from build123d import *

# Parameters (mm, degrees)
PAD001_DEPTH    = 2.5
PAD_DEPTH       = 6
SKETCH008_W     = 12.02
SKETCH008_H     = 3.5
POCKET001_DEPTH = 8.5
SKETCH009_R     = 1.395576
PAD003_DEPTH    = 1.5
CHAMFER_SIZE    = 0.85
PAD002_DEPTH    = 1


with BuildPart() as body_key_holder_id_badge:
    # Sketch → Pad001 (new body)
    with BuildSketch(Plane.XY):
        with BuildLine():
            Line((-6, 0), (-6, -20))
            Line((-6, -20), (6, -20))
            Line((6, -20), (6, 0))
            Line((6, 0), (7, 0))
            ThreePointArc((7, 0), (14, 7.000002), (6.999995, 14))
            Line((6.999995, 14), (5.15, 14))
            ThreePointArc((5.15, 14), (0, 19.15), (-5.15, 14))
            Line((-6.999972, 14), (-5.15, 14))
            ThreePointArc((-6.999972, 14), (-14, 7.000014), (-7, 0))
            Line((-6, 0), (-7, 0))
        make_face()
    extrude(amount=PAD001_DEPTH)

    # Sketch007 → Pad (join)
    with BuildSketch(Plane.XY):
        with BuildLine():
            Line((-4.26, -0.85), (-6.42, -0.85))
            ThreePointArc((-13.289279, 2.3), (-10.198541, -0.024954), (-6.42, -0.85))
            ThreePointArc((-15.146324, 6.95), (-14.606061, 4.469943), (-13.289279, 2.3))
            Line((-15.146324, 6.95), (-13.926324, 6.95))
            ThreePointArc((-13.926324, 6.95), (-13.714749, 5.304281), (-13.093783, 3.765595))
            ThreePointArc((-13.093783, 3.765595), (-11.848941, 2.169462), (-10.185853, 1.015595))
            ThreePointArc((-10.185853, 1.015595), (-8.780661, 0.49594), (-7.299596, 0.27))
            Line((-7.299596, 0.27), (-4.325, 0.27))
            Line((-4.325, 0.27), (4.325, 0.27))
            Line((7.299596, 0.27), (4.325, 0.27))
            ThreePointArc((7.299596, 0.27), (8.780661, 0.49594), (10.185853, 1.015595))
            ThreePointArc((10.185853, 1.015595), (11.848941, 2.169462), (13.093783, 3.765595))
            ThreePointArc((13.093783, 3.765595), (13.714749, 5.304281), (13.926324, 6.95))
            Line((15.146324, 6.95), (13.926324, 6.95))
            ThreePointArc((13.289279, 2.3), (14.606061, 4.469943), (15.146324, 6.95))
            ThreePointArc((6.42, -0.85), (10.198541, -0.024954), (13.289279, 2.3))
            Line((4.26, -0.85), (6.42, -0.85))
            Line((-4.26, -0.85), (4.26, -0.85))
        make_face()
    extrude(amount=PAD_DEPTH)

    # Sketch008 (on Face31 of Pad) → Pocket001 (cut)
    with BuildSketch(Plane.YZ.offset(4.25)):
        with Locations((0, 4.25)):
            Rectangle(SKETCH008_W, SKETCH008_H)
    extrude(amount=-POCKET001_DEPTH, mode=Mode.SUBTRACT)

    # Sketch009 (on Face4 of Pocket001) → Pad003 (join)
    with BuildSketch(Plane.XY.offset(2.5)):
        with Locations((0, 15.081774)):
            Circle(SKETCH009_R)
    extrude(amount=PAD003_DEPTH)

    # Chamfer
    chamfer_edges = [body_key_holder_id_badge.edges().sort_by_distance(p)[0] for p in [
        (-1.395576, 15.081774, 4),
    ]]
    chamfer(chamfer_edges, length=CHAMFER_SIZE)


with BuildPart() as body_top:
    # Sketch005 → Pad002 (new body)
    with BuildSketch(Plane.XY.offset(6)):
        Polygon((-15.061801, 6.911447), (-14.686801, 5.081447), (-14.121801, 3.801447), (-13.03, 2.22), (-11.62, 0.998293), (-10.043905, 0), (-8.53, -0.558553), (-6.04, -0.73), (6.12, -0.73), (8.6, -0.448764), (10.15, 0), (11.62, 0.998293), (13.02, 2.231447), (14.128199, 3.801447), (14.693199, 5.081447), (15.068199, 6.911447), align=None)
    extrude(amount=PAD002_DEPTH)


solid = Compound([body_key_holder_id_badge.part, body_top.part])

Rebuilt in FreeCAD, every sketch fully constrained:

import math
import FreeCAD as App
import Part
import Sketcher

V = App.Vector


def edges_at(feature, points):
    """Names of the edges that pass closest to the given points."""
    edges = feature.Shape.Edges
    near = lambda p: min(range(len(edges)), key=lambda i: edges[i].distToShape(Part.Vertex(*p))[0])
    return sorted({f"Edge{near(p) + 1}" for p in points})

doc = App.newDocument("Part")
body = doc.addObject("PartDesign::Body", "Body")

# Sketch on XY plane
sketch1 = body.newObject("Sketcher::SketchObject", "Sketch")
sketch1.AttachmentSupport = (doc.getObject("XY_Plane"), [""])
sketch1.MapMode = "FlatFace"
sketch1.addGeometry([
    Part.LineSegment(V(-6, 0, 0), V(-6, -20, 0)),  # 0
    Part.LineSegment(V(-6, -20, 0), V(6, -20, 0)),  # 1
    Part.LineSegment(V(6, -20, 0), V(6, 0, 0)),  # 2
    Part.LineSegment(V(6, 0, 0), V(7, 0, 0)),  # 3
    Part.ArcOfCircle(Part.Circle(V(7, 7, 0), V(0, 0, 1), 7), math.radians(-90), math.radians(90)),  # 4
    Part.LineSegment(V(7, 14, 0), V(5.2, 14, 0)),  # 5
    Part.ArcOfCircle(Part.Circle(V(0, 14, 0), V(0, 0, 1), 5.2), math.radians(0), math.radians(180)),  # 6
    Part.LineSegment(V(-5.2, 14, 0), V(-7, 14, 0)),  # 7
    Part.ArcOfCircle(Part.Circle(V(-7, 7, 0), V(0, 0, 1), 7), math.radians(90), math.radians(270)),  # 8
    Part.LineSegment(V(-7, 0, 0), V(-6, 0, 0)),  # 9
], False)
sketch1.addConstraint([
    Sketcher.Constraint("Coincident", 0, 2, 1, 1),
    Sketcher.Constraint("Coincident", 1, 2, 2, 1),
    Sketcher.Constraint("Coincident", 2, 2, 3, 1),
    Sketcher.Constraint("Tangent", 3, 2, 4, 1),
    Sketcher.Constraint("Tangent", 4, 2, 5, 1),
    Sketcher.Constraint("Coincident", 5, 2, 6, 1),
    Sketcher.Constraint("Coincident", 6, 2, 7, 1),
    Sketcher.Constraint("Coincident", 7, 2, 8, 1),
    Sketcher.Constraint("Tangent", 8, 2, 9, 1),
    Sketcher.Constraint("Coincident", 9, 2, 0, 1),
    Sketcher.Constraint("Vertical", 0),
    Sketcher.Constraint("Horizontal", 1),
    Sketcher.Constraint("Vertical", 2),
    Sketcher.Constraint("Horizontal", 3),
    Sketcher.Constraint("Horizontal", 5),
    Sketcher.Constraint("Horizontal", 7),
    Sketcher.Constraint("Horizontal", 9),
    Sketcher.Constraint("Equal", 4, 8),
    Sketcher.Constraint("Symmetric", 3, 2, 8, 2, -1, 1),
    Sketcher.Constraint("Symmetric", 5, 2, 6, 2, -2),
    Sketcher.Constraint("Horizontal", 6, 3, 4, 2),
    Sketcher.Constraint("Equal", 3, 9),
    Sketcher.Constraint("Radius", 4, 7.0),
    Sketcher.Constraint("DistanceX", 1, 1, 1, 2, 12.0),
    Sketcher.Constraint("DistanceX", 3, 1, 3, 2, 1.0),
    Sketcher.Constraint("DistanceY", 0, 2, 0, 1, 20.0),
    Sketcher.Constraint("Radius", 6, 5.15),
    Sketcher.Constraint("DistanceX", 7, 2, 7, 1, 1.849972),
])
pad1 = body.newObject("PartDesign::Pad", "Pad")
pad1.Profile = sketch1
pad1.Length = 2.5

# Sketch on XY plane
sketch2 = body.newObject("Sketcher::SketchObject", "Sketch001")
sketch2.AttachmentSupport = (doc.getObject("XY_Plane"), [""])
sketch2.MapMode = "FlatFace"
sketch2.addGeometry([
    Part.LineSegment(V(-6.42, -0.85, 0), V(6.42, -0.85, 0)),  # 0
    Part.ArcOfCircle(Part.Circle(V(6.419998, 8.215004, 0), V(0, 0, 1), 9.065004), math.radians(-89.999985), math.radians(-40.7311)),  # 1
    Part.ArcOfCircle(Part.Circle(V(7.450575, 7.32759, 0), V(0, 0, 1), 7.705007), math.radians(-40.731077), math.radians(-2.808951)),  # 2
    Part.LineSegment(V(15.146324, 6.95, 0), V(13.926324, 6.95, 0)),  # 3
    Part.ArcOfCircle(Part.Circle(V(7.420013, 6.949997, 0), V(0, 0, 1), 6.506311), math.radians(-29.303309), math.radians(0.000025)),  # 4
    Part.ArcOfCircle(Part.Circle(V(7.224016, 7.059992, 0), V(0, 0, 1), 6.731063), math.radians(-63.894519), math.radians(-29.303249)),  # 5
    Part.ArcOfCircle(Part.Circle(V(6.930002, 7.65999, 0), V(0, 0, 1), 7.399227), math.radians(-87.136862), math.radians(-63.894468)),  # 6
    Part.LineSegment(V(7.299596, 0.27, 0), V(-7.299596, 0.27, 0)),  # 7
    Part.ArcOfCircle(Part.Circle(V(-6.930002, 7.65999, 0), V(0, 0, 1), 7.399227), math.radians(-116.105532), math.radians(-92.863138)),  # 8
    Part.ArcOfCircle(Part.Circle(V(-7.224016, 7.059992, 0), V(0, 0, 1), 6.731063), math.radians(-150.696751), math.radians(-116.105481)),  # 9
    Part.ArcOfCircle(Part.Circle(V(-7.420013, 6.949997, 0), V(0, 0, 1), 6.506311), math.radians(179.999975), math.radians(209.303309)),  # 10
    Part.LineSegment(V(-13.926324, 6.95, 0), V(-15.146324, 6.95, 0)),  # 11
    Part.ArcOfCircle(Part.Circle(V(-7.450575, 7.32759, 0), V(0, 0, 1), 7.705007), math.radians(-177.191049), math.radians(-139.268923)),  # 12
    Part.ArcOfCircle(Part.Circle(V(-6.419998, 8.215004, 0), V(0, 0, 1), 9.065004), math.radians(-139.2689), math.radians(-90.000015)),  # 13
], False)
sketch2.addConstraint([
    Sketcher.Constraint("Coincident", 0, 2, 1, 1),
    Sketcher.Constraint("Coincident", 1, 2, 2, 1),
    Sketcher.Constraint("Coincident", 2, 2, 3, 1),
    Sketcher.Constraint("Coincident", 3, 2, 4, 2),
    Sketcher.Constraint("Coincident", 4, 1, 5, 2),
    Sketcher.Constraint("Coincident", 5, 1, 6, 2),
    Sketcher.Constraint("Coincident", 6, 1, 7, 1),
    Sketcher.Constraint("Coincident", 7, 2, 8, 2),
    Sketcher.Constraint("Coincident", 8, 1, 9, 2),
    Sketcher.Constraint("Coincident", 9, 1, 10, 2),
    Sketcher.Constraint("Coincident", 10, 1, 11, 1),
    Sketcher.Constraint("Coincident", 11, 2, 12, 1),
    Sketcher.Constraint("Coincident", 12, 2, 13, 1),
    Sketcher.Constraint("Coincident", 13, 2, 0, 1),
    Sketcher.Constraint("Horizontal", 0),
    Sketcher.Constraint("Horizontal", 3),
    Sketcher.Constraint("Horizontal", 7),
    Sketcher.Constraint("Horizontal", 11),
    Sketcher.Constraint("DistanceX", 0, 1, 0, 2, 12.84),
    Sketcher.Constraint("DistanceX", 3, 2, 3, 1, 1.22),
    Sketcher.Constraint("DistanceX", 11, 2, 11, 1, 1.22),
    Sketcher.Constraint("DistanceY", -1, 1, 1, 2, 2.3),
    Sketcher.Constraint("DistanceY", -1, 1, 12, 2, 2.3),
    Sketcher.Constraint("DistanceY", 5, 3, 6, 3, 0.599998),
    Sketcher.Constraint("DistanceY", 5, 3, 8, 3, 0.599998),
    Sketcher.Constraint("DistanceY", 9, 3, 8, 3, 0.599998),
    Sketcher.Constraint("DistanceX", -1, 1, 6, 3, 6.930002),
    Sketcher.Constraint("DistanceX", 8, 3, -1, 1, 6.930002),
    Sketcher.Constraint("DistanceX", -1, 1, 0, 2, 6.42),
    Sketcher.Constraint("DistanceY", 0, 2, -1, 1, 0.85),
    Sketcher.Constraint("DistanceY", -1, 1, 2, 2, 6.95),
    Sketcher.Constraint("DistanceY", -1, 1, 6, 1, 0.27),
    Sketcher.Constraint("DistanceY", -1, 1, 10, 1, 6.95),
    Sketcher.Constraint("Radius", 4, 6.506311),
    Sketcher.Constraint("Radius", 10, 6.506311),
    Sketcher.Constraint("DistanceX", 8, 3, 1, 3, 13.349999),
    Sketcher.Constraint("DistanceY", 5, 1, 4, 1, 2.75),
    Sketcher.Constraint("DistanceY", 8, 1, 9, 1, 2.75),
    Sketcher.Constraint("Radius", 1, 9.065004),
    Sketcher.Constraint("Radius", 2, 7.705007),
    Sketcher.Constraint("Radius", 5, 6.731063),
    Sketcher.Constraint("Radius", 6, 7.399227),
    Sketcher.Constraint("Radius", 8, 7.399227),
    Sketcher.Constraint("Radius", 9, 6.731063),
    Sketcher.Constraint("Radius", 12, 7.705007),
    Sketcher.Constraint("Radius", 13, 9.065004),
    Sketcher.Constraint("DistanceY", 2, 3, 6, 3, 0.3324),
    Sketcher.Constraint("DistanceY", 12, 3, 8, 3, 0.3324),
    Sketcher.Constraint("DistanceX", 7, 2, 13, 3, 0.879598),
    Sketcher.Constraint("DistanceX", 7, 2, 7, 1, 14.599192),
    Sketcher.Constraint("DistanceX", 4, 1, 3, 2, 0.832541),
    Sketcher.Constraint("DistanceX", 8, 1, 10, 3, 2.76584),
])
pad2 = body.newObject("PartDesign::Pad", "Pad001")
pad2.Profile = sketch2
pad2.Length = 6

# Sketch on YZ plane
sketch3 = body.newObject("Sketcher::SketchObject", "Sketch002")
sketch3.AttachmentSupport = (doc.getObject("YZ_Plane"), [""])
sketch3.MapMode = "FlatFace"
sketch3.AttachmentOffset = App.Placement(V(0, 0, 4.25), App.Rotation())
sketch3.addGeometry([
    Part.LineSegment(V(-6, 6, 0), V(-6, 2.5, 0)),
    Part.LineSegment(V(-6, 2.5, 0), V(6, 2.5, 0)),
    Part.LineSegment(V(6, 2.5, 0), V(6, 6, 0)),
    Part.LineSegment(V(6, 6, 0), V(-6, 6, 0)),
], False)
sketch3.addConstraint([
    Sketcher.Constraint("Coincident", 0, 2, 1, 1),
    Sketcher.Constraint("Coincident", 1, 2, 2, 1),
    Sketcher.Constraint("Coincident", 2, 2, 3, 1),
    Sketcher.Constraint("Coincident", 3, 2, 0, 1),
    Sketcher.Constraint("Vertical", 0),
    Sketcher.Constraint("Horizontal", 1),
    Sketcher.Constraint("Vertical", 2),
    Sketcher.Constraint("Horizontal", 3),
    Sketcher.Constraint("DistanceY", 0, 2, 0, 1, 3.5),
    Sketcher.Constraint("DistanceY", -1, 1, 2, 2, 6.0),
    Sketcher.Constraint("DistanceX", 1, 1, 1, 2, 12.02),
    Sketcher.Constraint("DistanceX", 0, 2, -1, 1, 6.01),
])
pocket1 = body.newObject("PartDesign::Pocket", "Pocket")
pocket1.Profile = sketch3
pocket1.Length = 8.5

# Sketch on XY plane
sketch4 = body.newObject("Sketcher::SketchObject", "Sketch003")
sketch4.AttachmentSupport = (doc.getObject("XY_Plane"), [""])
sketch4.MapMode = "FlatFace"
sketch4.AttachmentOffset = App.Placement(V(0, 0, 2.5), App.Rotation())
sketch4.addGeometry(Part.Circle(V(0, 15.1, 0), V(0, 0, 1), 1.4), False)
sketch4.addConstraint([
    Sketcher.Constraint("PointOnObject", 0, 3, -2),
    Sketcher.Constraint("Diameter", 0, 2.791152),
    Sketcher.Constraint("DistanceY", -1, 1, 0, 3, 15.081774),
])
pad3 = body.newObject("PartDesign::Pad", "Pad002")
pad3.Profile = sketch4
pad3.Length = 1.5
doc.recompute()

chamfer = body.newObject("PartDesign::Chamfer", "Chamfer")
chamfer.Base = (pad3, edges_at(pad3, [(-1.396, 15.082, 4)]))
chamfer.Size = 0.85
body2 = doc.addObject("PartDesign::Body", "Body001")

# Sketch on XY plane
sketch5 = body2.newObject("Sketcher::SketchObject", "Sketch004")
sketch5.AttachmentSupport = (doc.getObject("XY_Plane001"), [""])
sketch5.MapMode = "FlatFace"
sketch5.AttachmentOffset = App.Placement(V(0, 0, 6), App.Rotation())
sketch5.addGeometry([
    Part.LineSegment(V(-15.1, 6.9, 0), V(-14.7, 5.1, 0)),  # 0
    Part.LineSegment(V(-14.7, 5.1, 0), V(-14.1, 3.8, 0)),  # 1
    Part.LineSegment(V(-14.1, 3.8, 0), V(-13, 2.2, 0)),  # 2
    Part.LineSegment(V(-13, 2.2, 0), V(-11.6, 1, 0)),  # 3
    Part.LineSegment(V(-11.6, 1, 0), V(-10, 0, 0)),  # 4
    Part.LineSegment(V(-10, 0, 0), V(-8.5, -0.6, 0)),  # 5
    Part.LineSegment(V(-8.5, -0.6, 0), V(-6, -0.7, 0)),  # 6
    Part.LineSegment(V(-6, -0.7, 0), V(6.1, -0.7, 0)),  # 7
    Part.LineSegment(V(6.1, -0.7, 0), V(8.6, -0.4, 0)),  # 8
    Part.LineSegment(V(8.6, -0.4, 0), V(10.2, 0, 0)),  # 9
    Part.LineSegment(V(10.2, 0, 0), V(11.6, 1, 0)),  # 10
    Part.LineSegment(V(11.6, 1, 0), V(13, 2.2, 0)),  # 11
    Part.LineSegment(V(13, 2.2, 0), V(14.1, 3.8, 0)),  # 12
    Part.LineSegment(V(14.1, 3.8, 0), V(14.7, 5.1, 0)),  # 13
    Part.LineSegment(V(14.7, 5.1, 0), V(15.1, 6.9, 0)),  # 14
    Part.LineSegment(V(15.1, 6.9, 0), V(-15.1, 6.9, 0)),  # 15
], False)
sketch5.addConstraint([
    Sketcher.Constraint("Coincident", 0, 2, 1, 1),
    Sketcher.Constraint("Coincident", 1, 2, 2, 1),
    Sketcher.Constraint("Coincident", 2, 2, 3, 1),
    Sketcher.Constraint("Coincident", 3, 2, 4, 1),
    Sketcher.Constraint("Coincident", 4, 2, 5, 1),
    Sketcher.Constraint("Coincident", 5, 2, 6, 1),
    Sketcher.Constraint("Coincident", 6, 2, 7, 1),
    Sketcher.Constraint("Coincident", 7, 2, 8, 1),
    Sketcher.Constraint("Coincident", 8, 2, 9, 1),
    Sketcher.Constraint("Coincident", 9, 2, 10, 1),
    Sketcher.Constraint("Coincident", 10, 2, 11, 1),
    Sketcher.Constraint("Coincident", 11, 2, 12, 1),
    Sketcher.Constraint("Coincident", 12, 2, 13, 1),
    Sketcher.Constraint("Coincident", 13, 2, 14, 1),
    Sketcher.Constraint("Coincident", 14, 2, 15, 1),
    Sketcher.Constraint("Coincident", 15, 2, 0, 1),
    Sketcher.Constraint("Horizontal", 7),
    Sketcher.Constraint("Horizontal", 15),
    Sketcher.Constraint("Symmetric", 3, 2, 10, 2, -2),
    Sketcher.Constraint("PointOnObject", 4, 2, -1),
    Sketcher.Constraint("PointOnObject", 9, 2, -1),
    Sketcher.Constraint("Horizontal", 1, 2, 12, 2),
    Sketcher.Constraint("Horizontal", 0, 2, 13, 2),
    Sketcher.Constraint("Equal", 3, 4),
    Sketcher.Constraint("Equal", 6, 8),
    Sketcher.Constraint("Equal", 5, 9),
    Sketcher.Constraint("Equal", 4, 11),
    Sketcher.Constraint("Equal", 2, 12),
    Sketcher.Constraint("Equal", 1, 13),
    Sketcher.Constraint("Equal", 0, 14),
    Sketcher.Constraint("DistanceX", 7, 1, 7, 2, 12.16),
    Sketcher.Constraint("DistanceX", 15, 2, 15, 1, 30.13),
    Sketcher.Constraint("DistanceX", -1, 1, 8, 2, 8.6),
    Sketcher.Constraint("DistanceX", 2, 2, 5, 2, 4.5),
    Sketcher.Constraint("DistanceX", 7, 2, 10, 2, 5.5),
    Sketcher.Constraint("DistanceX", 10, 2, 11, 2, 1.4),
    Sketcher.Constraint("DistanceX", 2, 2, -1, 1, 13.03),
    Sketcher.Constraint("DistanceY", -1, 1, 2, 2, 2.22),
    Sketcher.Constraint("DistanceX", 3, 2, -1, 1, 11.62),
    Sketcher.Constraint("DistanceY", 6, 2, -1, 1, 0.73),
    Sketcher.Constraint("DistanceX", -1, 1, 9, 2, 10.15),
    Sketcher.Constraint("DistanceY", 1, 2, 0, 2, 1.28),
    Sketcher.Constraint("DistanceY", 5, 2, 1, 2, 4.36),
    Sketcher.Constraint("DistanceY", 11, 2, 12, 2, 1.57),
    Sketcher.Constraint("DistanceY", 13, 2, 14, 2, 1.83),
    Sketcher.Constraint("DistanceX", 12, 2, 14, 2, 0.94),
    Sketcher.Constraint("DistanceX", 0, 2, 1, 2, 0.565),
])
pad4 = body2.newObject("PartDesign::Pad", "Pad003")
pad4.Profile = sketch5
pad4.Length = 1

doc.recompute()
